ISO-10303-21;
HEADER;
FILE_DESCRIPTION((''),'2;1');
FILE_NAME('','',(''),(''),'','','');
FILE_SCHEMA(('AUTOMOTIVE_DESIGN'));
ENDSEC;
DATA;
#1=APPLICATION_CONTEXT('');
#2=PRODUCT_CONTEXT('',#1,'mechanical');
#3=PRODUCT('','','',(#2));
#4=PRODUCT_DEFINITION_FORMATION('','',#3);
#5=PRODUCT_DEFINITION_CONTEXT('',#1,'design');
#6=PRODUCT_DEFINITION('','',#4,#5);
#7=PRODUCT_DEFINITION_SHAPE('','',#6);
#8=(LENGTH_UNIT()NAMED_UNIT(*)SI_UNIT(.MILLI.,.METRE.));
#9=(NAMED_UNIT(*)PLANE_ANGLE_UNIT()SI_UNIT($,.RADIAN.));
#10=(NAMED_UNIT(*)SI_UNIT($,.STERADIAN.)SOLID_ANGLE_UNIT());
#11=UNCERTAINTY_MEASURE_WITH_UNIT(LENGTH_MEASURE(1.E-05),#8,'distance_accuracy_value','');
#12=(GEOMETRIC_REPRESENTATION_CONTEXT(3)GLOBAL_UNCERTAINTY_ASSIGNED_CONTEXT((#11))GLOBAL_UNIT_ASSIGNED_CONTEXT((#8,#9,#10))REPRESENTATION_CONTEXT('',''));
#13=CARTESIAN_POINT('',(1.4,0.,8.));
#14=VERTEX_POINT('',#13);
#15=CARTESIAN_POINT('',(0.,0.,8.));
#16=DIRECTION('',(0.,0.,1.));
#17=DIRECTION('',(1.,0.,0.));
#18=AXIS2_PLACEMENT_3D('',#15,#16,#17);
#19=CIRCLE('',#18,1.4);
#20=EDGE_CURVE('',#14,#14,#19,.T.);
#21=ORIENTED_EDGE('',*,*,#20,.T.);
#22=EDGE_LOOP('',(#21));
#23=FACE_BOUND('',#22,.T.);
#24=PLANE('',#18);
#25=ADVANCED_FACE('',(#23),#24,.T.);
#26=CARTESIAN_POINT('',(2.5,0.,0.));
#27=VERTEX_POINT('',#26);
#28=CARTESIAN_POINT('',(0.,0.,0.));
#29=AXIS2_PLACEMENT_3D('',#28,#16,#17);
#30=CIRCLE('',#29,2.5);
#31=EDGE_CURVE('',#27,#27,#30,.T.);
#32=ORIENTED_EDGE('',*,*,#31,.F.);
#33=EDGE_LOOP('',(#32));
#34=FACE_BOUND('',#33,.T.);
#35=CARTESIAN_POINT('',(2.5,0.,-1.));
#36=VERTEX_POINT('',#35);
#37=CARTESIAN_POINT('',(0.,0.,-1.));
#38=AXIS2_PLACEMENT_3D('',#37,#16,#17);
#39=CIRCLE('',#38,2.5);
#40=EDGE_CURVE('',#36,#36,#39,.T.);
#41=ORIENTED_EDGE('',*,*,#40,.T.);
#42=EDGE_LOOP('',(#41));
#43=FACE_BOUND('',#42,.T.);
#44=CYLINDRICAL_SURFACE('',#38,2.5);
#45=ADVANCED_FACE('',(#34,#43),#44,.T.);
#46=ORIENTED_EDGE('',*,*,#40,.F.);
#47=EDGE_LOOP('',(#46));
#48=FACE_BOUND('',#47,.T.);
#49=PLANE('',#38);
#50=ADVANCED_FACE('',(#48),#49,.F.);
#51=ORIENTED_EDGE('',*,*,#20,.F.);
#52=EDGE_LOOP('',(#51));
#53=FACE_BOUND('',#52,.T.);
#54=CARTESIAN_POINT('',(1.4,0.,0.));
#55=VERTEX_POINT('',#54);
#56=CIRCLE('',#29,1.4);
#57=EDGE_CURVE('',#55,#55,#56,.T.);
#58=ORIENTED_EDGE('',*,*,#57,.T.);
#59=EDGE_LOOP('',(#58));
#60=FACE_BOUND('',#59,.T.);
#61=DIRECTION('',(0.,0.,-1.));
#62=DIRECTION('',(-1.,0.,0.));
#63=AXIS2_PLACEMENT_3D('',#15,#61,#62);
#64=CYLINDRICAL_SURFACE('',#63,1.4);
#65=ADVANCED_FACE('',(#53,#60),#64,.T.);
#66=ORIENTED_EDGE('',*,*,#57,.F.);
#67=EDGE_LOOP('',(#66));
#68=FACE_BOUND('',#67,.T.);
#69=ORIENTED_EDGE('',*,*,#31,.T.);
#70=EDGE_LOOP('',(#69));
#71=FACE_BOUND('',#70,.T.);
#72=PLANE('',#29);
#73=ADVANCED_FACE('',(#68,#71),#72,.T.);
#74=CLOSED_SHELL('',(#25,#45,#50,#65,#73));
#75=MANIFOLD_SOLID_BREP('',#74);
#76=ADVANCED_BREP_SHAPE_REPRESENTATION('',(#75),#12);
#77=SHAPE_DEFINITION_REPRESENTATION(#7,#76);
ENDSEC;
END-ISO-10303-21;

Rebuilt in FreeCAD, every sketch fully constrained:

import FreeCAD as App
import Part
import Sketcher
from FreeCAD import Vector

doc = App.newDocument("Part")
body = doc.addObject("PartDesign::Body", "Body")

sketch1 = body.newObject("Sketcher::SketchObject", "Sketch")
sketch1.AttachmentSupport = (doc.getObject("XY_Plane"), [""])
sketch1.MapMode = "FlatFace"
sketch1.addGeometry(Part.Circle(Vector(0, 0, 0), Vector(0, 0, 1), 1.4), False)
sketch1.addConstraint([
    Sketcher.Constraint("Coincident", 0, 3, -1, 1),
    Sketcher.Constraint("Diameter", 0, 2.8),
])
pad1 = body.newObject("PartDesign::Pad", "Pad")
pad1.Profile = sketch1
pad1.Length = 8

sketch2 = body.newObject("Sketcher::SketchObject", "Sketch001")
sketch2.AttachmentSupport = (doc.getObject("XY_Plane"), [""])
sketch2.MapMode = "FlatFace"
sketch2.addGeometry(Part.Circle(Vector(0, 0, 0), Vector(0, 0, 1), 2.5), False)
sketch2.addConstraint([
    Sketcher.Constraint("Coincident", 0, 3, -1, 1),
    Sketcher.Constraint("Diameter", 0, 5.0),
])
pad2 = body.newObject("PartDesign::Pad", "Pad001")
pad2.Profile = sketch2
pad2.Length = 1
pad2.Reversed = True

doc.recompute()
